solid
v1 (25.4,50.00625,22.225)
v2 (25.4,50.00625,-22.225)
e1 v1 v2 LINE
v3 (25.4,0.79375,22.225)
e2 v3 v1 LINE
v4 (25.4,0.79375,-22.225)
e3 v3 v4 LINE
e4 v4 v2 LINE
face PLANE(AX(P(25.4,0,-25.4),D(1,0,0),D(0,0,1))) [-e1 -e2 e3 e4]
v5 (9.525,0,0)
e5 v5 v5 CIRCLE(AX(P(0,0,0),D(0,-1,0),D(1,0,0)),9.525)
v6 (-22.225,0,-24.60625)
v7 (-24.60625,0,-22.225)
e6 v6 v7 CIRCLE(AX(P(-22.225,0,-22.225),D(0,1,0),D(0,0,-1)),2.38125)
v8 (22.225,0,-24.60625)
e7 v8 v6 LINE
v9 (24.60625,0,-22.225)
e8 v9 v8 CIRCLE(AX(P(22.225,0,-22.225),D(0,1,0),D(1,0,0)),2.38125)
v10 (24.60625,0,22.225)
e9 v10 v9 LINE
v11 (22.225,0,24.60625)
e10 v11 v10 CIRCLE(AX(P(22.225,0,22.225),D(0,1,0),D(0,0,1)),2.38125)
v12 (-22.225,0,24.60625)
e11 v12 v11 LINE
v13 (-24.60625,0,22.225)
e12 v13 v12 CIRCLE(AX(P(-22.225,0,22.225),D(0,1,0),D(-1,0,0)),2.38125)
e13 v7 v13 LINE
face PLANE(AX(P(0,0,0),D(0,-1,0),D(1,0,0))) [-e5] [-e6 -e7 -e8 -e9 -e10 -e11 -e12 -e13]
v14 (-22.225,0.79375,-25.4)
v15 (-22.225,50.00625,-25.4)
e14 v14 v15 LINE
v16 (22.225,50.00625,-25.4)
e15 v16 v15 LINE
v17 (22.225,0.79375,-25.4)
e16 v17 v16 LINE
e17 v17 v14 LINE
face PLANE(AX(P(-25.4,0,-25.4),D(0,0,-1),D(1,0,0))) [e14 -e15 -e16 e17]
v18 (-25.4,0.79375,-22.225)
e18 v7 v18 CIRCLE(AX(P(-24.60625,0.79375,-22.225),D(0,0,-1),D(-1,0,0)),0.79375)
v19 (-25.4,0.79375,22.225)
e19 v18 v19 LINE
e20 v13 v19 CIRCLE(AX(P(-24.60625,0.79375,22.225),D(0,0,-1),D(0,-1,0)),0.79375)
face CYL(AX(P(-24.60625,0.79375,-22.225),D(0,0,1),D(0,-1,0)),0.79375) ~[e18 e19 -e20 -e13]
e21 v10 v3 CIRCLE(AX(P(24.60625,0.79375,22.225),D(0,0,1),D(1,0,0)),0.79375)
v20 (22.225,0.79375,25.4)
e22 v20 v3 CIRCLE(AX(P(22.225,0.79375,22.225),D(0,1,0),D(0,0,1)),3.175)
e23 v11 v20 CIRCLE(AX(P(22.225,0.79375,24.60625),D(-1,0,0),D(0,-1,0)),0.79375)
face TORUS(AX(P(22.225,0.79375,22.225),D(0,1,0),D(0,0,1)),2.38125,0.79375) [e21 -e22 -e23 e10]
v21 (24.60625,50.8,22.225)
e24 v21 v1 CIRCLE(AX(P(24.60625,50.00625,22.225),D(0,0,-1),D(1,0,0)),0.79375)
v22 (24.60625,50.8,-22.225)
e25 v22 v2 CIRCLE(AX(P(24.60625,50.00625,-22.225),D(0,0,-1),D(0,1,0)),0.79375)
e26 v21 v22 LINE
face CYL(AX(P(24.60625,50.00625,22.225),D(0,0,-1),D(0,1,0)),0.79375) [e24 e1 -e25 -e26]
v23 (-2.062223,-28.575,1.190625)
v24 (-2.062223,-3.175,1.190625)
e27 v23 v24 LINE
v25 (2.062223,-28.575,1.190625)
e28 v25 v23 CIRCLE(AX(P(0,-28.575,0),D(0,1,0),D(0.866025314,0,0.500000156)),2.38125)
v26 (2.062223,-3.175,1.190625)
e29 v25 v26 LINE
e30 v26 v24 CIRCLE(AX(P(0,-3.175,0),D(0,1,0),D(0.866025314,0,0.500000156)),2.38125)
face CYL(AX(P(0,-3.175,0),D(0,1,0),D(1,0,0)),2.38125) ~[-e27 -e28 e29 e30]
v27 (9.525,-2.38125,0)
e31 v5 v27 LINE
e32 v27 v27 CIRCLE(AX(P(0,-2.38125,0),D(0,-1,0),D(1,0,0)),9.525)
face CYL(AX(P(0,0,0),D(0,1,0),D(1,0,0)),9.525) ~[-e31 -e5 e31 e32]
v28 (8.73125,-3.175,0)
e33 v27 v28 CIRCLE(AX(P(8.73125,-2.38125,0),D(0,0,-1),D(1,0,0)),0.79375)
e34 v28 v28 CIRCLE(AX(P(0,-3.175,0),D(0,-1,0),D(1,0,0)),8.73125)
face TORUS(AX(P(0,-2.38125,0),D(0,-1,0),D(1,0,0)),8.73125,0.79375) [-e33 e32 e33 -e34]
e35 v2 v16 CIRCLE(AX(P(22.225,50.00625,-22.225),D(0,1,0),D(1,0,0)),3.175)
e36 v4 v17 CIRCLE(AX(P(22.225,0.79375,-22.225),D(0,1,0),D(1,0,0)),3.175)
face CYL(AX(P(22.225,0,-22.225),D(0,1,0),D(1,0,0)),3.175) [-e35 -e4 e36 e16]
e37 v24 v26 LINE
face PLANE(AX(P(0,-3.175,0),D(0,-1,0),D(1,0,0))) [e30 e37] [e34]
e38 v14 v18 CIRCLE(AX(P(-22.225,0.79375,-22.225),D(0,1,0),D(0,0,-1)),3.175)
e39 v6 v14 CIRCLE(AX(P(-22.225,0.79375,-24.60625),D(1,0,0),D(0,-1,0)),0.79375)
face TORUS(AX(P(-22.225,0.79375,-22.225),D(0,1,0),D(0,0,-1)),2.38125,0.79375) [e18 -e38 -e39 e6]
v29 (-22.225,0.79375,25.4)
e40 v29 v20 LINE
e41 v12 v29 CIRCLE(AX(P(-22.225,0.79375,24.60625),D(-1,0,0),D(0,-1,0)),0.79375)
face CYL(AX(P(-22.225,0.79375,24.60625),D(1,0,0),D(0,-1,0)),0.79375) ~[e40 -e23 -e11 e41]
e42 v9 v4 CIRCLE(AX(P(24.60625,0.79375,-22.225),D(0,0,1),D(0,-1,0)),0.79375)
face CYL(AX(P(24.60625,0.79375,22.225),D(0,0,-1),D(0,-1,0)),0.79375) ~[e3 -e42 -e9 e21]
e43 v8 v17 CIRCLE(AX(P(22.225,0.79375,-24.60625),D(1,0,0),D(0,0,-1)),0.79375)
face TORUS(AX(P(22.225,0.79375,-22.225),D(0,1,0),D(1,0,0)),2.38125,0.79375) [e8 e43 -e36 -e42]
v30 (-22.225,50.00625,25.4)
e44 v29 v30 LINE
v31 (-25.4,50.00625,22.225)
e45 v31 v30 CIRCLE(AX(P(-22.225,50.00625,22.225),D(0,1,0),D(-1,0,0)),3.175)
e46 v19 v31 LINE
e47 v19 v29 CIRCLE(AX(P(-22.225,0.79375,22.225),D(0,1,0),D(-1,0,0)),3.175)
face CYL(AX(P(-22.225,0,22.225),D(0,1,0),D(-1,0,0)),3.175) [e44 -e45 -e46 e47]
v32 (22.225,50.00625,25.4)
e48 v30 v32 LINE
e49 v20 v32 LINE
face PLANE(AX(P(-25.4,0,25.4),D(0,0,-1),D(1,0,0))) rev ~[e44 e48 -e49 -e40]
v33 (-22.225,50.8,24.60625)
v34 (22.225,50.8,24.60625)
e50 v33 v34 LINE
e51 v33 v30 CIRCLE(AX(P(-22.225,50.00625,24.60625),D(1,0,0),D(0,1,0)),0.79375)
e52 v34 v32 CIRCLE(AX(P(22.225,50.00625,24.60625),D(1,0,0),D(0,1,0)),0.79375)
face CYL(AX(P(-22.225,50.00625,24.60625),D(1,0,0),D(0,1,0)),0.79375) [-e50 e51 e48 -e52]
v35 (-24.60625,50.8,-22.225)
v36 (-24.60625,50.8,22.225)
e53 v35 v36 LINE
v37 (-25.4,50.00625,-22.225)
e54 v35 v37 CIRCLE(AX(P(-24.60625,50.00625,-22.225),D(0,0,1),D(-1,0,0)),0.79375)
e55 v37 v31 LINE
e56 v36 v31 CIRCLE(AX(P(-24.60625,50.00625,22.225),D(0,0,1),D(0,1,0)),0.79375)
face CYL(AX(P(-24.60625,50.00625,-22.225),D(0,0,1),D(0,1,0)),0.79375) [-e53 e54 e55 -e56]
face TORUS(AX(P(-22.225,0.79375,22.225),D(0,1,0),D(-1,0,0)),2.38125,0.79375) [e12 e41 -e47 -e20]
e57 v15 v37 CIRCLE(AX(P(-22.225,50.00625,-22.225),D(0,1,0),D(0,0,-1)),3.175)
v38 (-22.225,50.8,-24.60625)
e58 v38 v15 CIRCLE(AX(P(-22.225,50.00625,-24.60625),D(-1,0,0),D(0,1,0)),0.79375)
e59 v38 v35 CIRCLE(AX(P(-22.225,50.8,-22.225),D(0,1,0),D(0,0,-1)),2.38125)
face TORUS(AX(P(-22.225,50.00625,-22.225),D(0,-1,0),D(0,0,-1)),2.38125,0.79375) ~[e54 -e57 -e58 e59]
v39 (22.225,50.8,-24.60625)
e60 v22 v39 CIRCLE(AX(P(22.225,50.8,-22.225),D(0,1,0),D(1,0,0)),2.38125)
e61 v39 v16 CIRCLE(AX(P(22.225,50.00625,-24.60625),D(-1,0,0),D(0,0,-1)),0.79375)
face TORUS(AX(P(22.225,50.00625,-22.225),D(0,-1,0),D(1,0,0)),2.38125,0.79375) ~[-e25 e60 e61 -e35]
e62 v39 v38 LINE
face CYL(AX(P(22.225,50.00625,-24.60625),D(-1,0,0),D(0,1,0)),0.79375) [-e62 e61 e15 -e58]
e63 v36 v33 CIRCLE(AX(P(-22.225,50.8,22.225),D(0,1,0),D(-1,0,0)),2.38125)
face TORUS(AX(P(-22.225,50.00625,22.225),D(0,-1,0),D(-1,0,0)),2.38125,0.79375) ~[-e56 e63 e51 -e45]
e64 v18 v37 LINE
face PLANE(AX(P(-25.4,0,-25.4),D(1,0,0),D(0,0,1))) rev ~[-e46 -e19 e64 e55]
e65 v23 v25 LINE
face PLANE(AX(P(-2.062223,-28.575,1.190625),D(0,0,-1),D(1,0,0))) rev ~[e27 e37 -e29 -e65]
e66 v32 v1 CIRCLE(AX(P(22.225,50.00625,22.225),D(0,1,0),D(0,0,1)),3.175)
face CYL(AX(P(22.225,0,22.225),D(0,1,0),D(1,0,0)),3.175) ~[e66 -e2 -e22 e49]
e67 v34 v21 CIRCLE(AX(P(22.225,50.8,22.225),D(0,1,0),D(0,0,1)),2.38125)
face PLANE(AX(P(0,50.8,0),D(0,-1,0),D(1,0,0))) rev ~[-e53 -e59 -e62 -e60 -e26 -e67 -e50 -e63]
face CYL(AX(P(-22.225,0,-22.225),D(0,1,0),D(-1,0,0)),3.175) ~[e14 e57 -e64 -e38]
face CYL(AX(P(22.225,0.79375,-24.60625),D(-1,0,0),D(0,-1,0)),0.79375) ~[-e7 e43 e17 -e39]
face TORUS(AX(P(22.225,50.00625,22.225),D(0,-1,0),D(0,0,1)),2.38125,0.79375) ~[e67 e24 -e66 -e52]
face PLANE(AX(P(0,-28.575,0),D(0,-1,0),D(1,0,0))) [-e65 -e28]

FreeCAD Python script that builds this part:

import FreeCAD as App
import Part
import Sketcher

V = App.Vector
Q = App.Units.Quantity


def edges_at(feature, points):
    """Names of the edges that pass closest to the given points."""
    edges = feature.Shape.Edges
    near = lambda p: min(range(len(edges)), key=lambda i: edges[i].distToShape(Part.Vertex(*p))[0])
    return sorted({f"Edge{near(p) + 1}" for p in points})

doc = App.newDocument("Part")
body = doc.addObject("PartDesign::Body", "Body")

# Sketch on XZ plane
sketch1 = doc.addObject("Sketcher::SketchObject", "Sketch")
body.addObject(sketch1)
sketch1.AttachmentSupport = (doc.XZ_Plane, [""])
sketch1.MapMode = "FlatFace"
sketch1.addGeometry(Part.LineSegment(V(-25, 25, 0), V(-25, -25, 0)), False)
sketch1.addGeometry(Part.LineSegment(V(-25, -25, 0), V(25, -25, 0)), False)
sketch1.addGeometry(Part.LineSegment(V(25, -25, 0), V(25, 25, 0)), False)
sketch1.addGeometry(Part.LineSegment(V(25, 25, 0), V(-25, 25, 0)), False)
sketch1.addConstraint(Sketcher.Constraint("Coincident", 0, 2, 1, 1))
sketch1.addConstraint(Sketcher.Constraint("Coincident", 1, 2, 2, 1))
sketch1.addConstraint(Sketcher.Constraint("Coincident", 2, 2, 3, 1))
sketch1.addConstraint(Sketcher.Constraint("Coincident", 3, 2, 0, 1))
sketch1.addConstraint(Sketcher.Constraint("Vertical", 0))
sketch1.addConstraint(Sketcher.Constraint("Horizontal", 1))
sketch1.addConstraint(Sketcher.Constraint("Vertical", 2))
sketch1.addConstraint(Sketcher.Constraint("Horizontal", 3))
sketch1.addConstraint(Sketcher.Constraint("Symmetric", 0, 2, 2, 2, -1, 1))
sketch1.addConstraint(Sketcher.Constraint("Equal", 3, 0))
sketch1.addConstraint(Sketcher.Constraint("DistanceX", 1, 1, 1, 2, Q("2 in")))
pad1 = doc.addObject("PartDesign::Pad", "Pad")
body.addObject(pad1)
pad1.Profile = sketch1
pad1.Length = Q("2 in")
pad1.Reversed = True

# Sketch on XZ plane
sketch2 = doc.addObject("Sketcher::SketchObject", "Sketch001")
body.addObject(sketch2)
sketch2.AttachmentSupport = (doc.XZ_Plane, [""])
sketch2.MapMode = "FlatFace"
sketch2.addGeometry(Part.Circle(V(0, 0, 0), V(0, 0, 1), 10), False)
sketch2.addConstraint(Sketcher.Constraint("Coincident", 0, 3, -1, 1))
sketch2.addConstraint(Sketcher.Constraint("Diameter", 0, Q("0.75 in")))
pad2 = doc.addObject("PartDesign::Pad", "Pad001")
body.addObject(pad2)
pad2.Profile = sketch2
pad2.Length = Q("0.125 in")

# Sketch on XZ plane
sketch3 = doc.addObject("Sketcher::SketchObject", "Sketch002")
body.addObject(sketch3)
sketch3.AttachmentSupport = (doc.XZ_Plane, [""])
sketch3.MapMode = "FlatFace"
sketch3.AttachmentOffset = App.Placement(V(0, 0, 0.125 * 25.4), App.Rotation())
sketch3.addGeometry(Part.Circle(V(0, 0, 0), V(0, 0, 1), 2.4), False)
sketch3.addConstraint(Sketcher.Constraint("Coincident", 0, 3, -1, 1))
sketch3.addConstraint(Sketcher.Constraint("Diameter", 0, Q("0.1875 in")))
pad3 = doc.addObject("PartDesign::Pad", "Pad002")
body.addObject(pad3)
pad3.Profile = sketch3
pad3.Length = Q("1 in")

# Sketch on XZ plane
sketch4 = doc.addObject("Sketcher::SketchObject", "Sketch003")
body.addObject(sketch4)
sketch4.AttachmentSupport = (doc.XZ_Plane, [""])
sketch4.MapMode = "FlatFace"
sketch4.AttachmentOffset = App.Placement(V(0, 0, 1.125 * 25.4), App.Rotation())
sketch4.addGeometry(Part.LineSegment(V(-2.1, 2.4, 0), V(-2.1, 1.2, 0)), False)
sketch4.addGeometry(Part.LineSegment(V(-2.1, 1.2, 0), V(2.1, 1.2, 0)), False)
sketch4.addGeometry(Part.LineSegment(V(2.1, 1.2, 0), V(2.1, 2.4, 0)), False)
sketch4.addGeometry(Part.LineSegment(V(2.1, 2.4, 0), V(-2.1, 2.4, 0)), False)
sketch4.addConstraint(Sketcher.Constraint("Coincident", 0, 2, 1, 1))
sketch4.addConstraint(Sketcher.Constraint("Coincident", 1, 2, 2, 1))
sketch4.addConstraint(Sketcher.Constraint("Coincident", 2, 2, 3, 1))
sketch4.addConstraint(Sketcher.Constraint("Coincident", 3, 2, 0, 1))
sketch4.addConstraint(Sketcher.Constraint("Vertical", 0))
sketch4.addConstraint(Sketcher.Constraint("Horizontal", 1))
sketch4.addConstraint(Sketcher.Constraint("Vertical", 2))
sketch4.addConstraint(Sketcher.Constraint("Horizontal", 3))
sketch4.addConstraint(Sketcher.Constraint("DistanceY", 0, 2, 0, 1, Q("0.046875 in")))
sketch4.addConstraint(Sketcher.Constraint("DistanceY", -1, 1, 0, 2, Q("0.046875 in")))
sketch4.addConstraint(Sketcher.Constraint("DistanceX", 1, 1, 1, 2, Q("4.124446 mm")))
sketch4.addConstraint(Sketcher.Constraint("DistanceX", 0, 2, -1, 1, Q("2.062223 mm")))
pocket1 = doc.addObject("PartDesign::Pocket", "Pocket")
body.addObject(pocket1)
pocket1.Profile = sketch4
pocket1.Length = Q("1 in")
doc.recompute()

fillet = doc.addObject("PartDesign::Fillet", "Fillet")
body.addObject(fillet)
fillet.Base = (pocket1, edges_at(pocket1, [
    (25.4, 25.4, 25.4),
    (25.4, 25.4, -25.4),
    (-25.4, 25.4, 25.4),
    (-25.4, 25.4, -25.4),
]))
fillet.Radius = Q("0.125 in")
doc.recompute()

fillet2 = doc.addObject("PartDesign::Fillet", "Fillet001")
body.addObject(fillet2)
fillet2.Base = (fillet, edges_at(fillet, [(0, 0, 25.4), (0, 50.8, 25.4), (-9.525, -3.175, 0)]))
fillet2.Radius = Q("0.03125 in")

doc.recompute()
